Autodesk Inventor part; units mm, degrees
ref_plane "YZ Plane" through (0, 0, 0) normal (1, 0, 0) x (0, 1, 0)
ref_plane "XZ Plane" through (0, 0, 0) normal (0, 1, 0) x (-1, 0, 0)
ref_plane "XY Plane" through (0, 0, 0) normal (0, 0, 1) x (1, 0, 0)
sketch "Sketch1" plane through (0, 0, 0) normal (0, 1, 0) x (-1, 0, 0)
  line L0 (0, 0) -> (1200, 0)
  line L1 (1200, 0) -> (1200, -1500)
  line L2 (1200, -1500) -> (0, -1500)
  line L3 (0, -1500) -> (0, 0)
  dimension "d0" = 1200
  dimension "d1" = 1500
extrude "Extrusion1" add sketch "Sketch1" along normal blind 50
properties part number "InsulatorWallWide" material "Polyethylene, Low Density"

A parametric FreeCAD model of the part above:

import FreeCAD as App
import Part
import Sketcher
from FreeCAD import Vector

doc = App.newDocument("Part")
params = doc.addObject("Spreadsheet::Sheet", "Params")
for row, (alias, value) in enumerate([
    ("sketch1_width", "1200 mm"),
    ("sketch1_height", "1500 mm"),
    ("pad1_length", "50 mm"),
], start=1):
    params.set(f"A{row}", alias)
    params.set(f"B{row}", "=" + value)
    params.setAlias(f"B{row}", alias)

body = doc.addObject("PartDesign::Body", "Body")

# Sketch on XZ plane
sketch1 = doc.addObject("Sketcher::SketchObject", "Sketch")
body.addObject(sketch1)
sketch1.AttachmentSupport = (doc.XZ_Plane, [""])
sketch1.MapMode = "FlatFace"
sketch1.addGeometry([
    Part.LineSegment(Vector(-1200, 0, 0), Vector(0, 0, 0)),
    Part.LineSegment(Vector(0, 0, 0), Vector(0, -1500, 0)),
    Part.LineSegment(Vector(0, -1500, 0), Vector(-1200, -1500, 0)),
    Part.LineSegment(Vector(-1200, -1500, 0), Vector(-1200, 0, 0)),
], False)
sketch1.addConstraint([
    Sketcher.Constraint("Coincident", 0, 2, 1, 1),
    Sketcher.Constraint("Coincident", 1, 2, 2, 1),
    Sketcher.Constraint("Coincident", 2, 2, 3, 1),
    Sketcher.Constraint("Coincident", 3, 2, 0, 1),
    Sketcher.Constraint("Horizontal", 0),
    Sketcher.Constraint("Vertical", 1),
    Sketcher.Constraint("Horizontal", 2),
    Sketcher.Constraint("Vertical", 3),
    Sketcher.Constraint("Coincident", 0, 2, -1, 1),
    Sketcher.Constraint("DistanceX", 0, 1, 0, 2, 1200.0),
    Sketcher.Constraint("DistanceY", 1, 2, 1, 1, 1500.0),
])
sketch1.setExpression("Constraints[9]", "Params.sketch1_width")
sketch1.setExpression("Constraints[10]", "Params.sketch1_height")
pad1 = doc.addObject("PartDesign::Pad", "Pad")
body.addObject(pad1)
pad1.Profile = sketch1
pad1.setExpression("Length", "Params.pad1_length")
pad1.Reversed = True

doc.recompute()
